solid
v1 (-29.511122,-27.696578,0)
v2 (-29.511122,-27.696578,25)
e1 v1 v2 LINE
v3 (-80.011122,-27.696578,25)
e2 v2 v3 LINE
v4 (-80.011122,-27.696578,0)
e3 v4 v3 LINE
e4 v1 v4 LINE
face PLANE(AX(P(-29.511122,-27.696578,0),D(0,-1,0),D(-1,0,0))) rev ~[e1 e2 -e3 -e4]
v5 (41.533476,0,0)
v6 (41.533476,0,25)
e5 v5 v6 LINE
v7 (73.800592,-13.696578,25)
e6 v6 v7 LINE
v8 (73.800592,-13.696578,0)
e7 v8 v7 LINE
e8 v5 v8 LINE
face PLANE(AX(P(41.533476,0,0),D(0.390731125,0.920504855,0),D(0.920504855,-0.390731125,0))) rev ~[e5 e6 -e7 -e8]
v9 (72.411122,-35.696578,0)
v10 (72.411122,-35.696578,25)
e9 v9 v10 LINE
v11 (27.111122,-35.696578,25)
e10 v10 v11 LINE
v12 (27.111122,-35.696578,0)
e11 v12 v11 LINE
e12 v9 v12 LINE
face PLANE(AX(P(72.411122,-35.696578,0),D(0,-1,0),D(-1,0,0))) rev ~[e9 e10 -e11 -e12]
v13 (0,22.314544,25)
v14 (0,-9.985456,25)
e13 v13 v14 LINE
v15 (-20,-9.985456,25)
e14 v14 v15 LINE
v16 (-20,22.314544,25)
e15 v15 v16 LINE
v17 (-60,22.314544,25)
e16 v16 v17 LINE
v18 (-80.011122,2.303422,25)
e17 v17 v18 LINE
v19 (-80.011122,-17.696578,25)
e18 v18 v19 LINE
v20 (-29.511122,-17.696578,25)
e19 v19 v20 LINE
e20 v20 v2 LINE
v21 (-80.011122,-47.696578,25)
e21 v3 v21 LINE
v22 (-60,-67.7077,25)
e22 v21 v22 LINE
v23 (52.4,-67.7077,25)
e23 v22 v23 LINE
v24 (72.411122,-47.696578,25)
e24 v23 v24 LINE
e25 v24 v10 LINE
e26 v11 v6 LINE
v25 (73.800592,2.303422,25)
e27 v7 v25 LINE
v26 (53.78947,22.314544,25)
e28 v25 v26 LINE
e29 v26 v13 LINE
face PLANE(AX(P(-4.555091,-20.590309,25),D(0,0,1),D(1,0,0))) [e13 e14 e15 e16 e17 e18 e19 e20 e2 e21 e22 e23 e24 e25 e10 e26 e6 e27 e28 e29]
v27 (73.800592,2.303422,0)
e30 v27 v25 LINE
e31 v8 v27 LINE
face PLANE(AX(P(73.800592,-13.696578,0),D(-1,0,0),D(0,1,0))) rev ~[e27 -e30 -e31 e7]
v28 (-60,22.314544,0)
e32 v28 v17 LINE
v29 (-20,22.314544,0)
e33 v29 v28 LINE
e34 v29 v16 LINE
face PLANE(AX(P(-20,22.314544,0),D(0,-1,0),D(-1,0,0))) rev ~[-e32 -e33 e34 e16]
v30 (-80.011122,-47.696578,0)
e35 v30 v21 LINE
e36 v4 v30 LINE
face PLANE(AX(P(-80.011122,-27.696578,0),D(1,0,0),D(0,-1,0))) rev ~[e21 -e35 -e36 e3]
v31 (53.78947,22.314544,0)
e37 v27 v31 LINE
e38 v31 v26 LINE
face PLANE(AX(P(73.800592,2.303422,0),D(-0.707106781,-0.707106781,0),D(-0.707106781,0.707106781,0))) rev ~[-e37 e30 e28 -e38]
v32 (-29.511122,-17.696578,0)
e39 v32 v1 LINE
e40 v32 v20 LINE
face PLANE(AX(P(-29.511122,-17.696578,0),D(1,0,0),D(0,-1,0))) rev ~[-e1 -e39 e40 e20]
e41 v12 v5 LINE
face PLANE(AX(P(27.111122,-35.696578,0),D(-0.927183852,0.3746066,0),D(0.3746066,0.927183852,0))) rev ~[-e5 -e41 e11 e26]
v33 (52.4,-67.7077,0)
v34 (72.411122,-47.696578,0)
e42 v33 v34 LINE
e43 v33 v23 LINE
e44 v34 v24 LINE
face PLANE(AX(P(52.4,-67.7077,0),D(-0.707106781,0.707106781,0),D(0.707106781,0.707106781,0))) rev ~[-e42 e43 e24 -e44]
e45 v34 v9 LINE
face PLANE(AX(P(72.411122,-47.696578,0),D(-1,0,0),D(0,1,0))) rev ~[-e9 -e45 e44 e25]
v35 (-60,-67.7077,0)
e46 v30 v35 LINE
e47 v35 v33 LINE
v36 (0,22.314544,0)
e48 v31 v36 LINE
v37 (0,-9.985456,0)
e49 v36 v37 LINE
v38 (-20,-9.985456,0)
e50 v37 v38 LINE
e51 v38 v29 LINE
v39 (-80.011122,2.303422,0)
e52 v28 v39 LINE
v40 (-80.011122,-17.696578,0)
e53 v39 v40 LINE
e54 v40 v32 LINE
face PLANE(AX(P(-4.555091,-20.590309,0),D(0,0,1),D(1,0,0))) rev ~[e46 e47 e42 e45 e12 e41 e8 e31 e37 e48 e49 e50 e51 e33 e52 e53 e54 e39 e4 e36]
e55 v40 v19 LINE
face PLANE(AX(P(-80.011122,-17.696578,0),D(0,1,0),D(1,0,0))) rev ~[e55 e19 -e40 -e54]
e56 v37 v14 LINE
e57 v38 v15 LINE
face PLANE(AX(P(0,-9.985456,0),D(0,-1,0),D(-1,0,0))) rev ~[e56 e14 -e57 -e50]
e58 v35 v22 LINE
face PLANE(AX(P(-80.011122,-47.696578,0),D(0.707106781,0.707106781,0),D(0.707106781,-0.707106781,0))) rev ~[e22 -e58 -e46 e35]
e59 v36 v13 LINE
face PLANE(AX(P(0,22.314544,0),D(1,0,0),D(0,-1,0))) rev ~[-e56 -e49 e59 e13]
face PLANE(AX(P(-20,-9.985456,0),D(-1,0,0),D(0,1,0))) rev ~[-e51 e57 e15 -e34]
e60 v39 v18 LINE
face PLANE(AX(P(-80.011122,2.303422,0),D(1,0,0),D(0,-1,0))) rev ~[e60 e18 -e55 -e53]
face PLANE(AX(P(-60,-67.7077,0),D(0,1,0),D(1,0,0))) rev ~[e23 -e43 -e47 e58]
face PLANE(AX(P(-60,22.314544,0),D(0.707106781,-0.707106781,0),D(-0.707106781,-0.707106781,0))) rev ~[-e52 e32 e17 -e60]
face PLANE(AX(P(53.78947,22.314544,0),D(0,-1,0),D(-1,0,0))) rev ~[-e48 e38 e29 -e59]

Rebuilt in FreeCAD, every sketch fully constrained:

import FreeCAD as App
import Part
import Sketcher

V = App.Vector
Q = App.Units.Quantity

doc = App.newDocument("Part")
body = doc.addObject("PartDesign::Body", "Body")

sketch1 = body.newObject("Sketcher::SketchObject", "Sketch")
sketch1.AttachmentSupport = (doc.getObject("XY_Plane"), [""])
sketch1.MapMode = "FlatFace"
sketch1.addGeometry([
    Part.LineSegment(V(-80, -48, 0), V(-60, -68, 0)),
    Part.LineSegment(V(-60, -68, 0), V(52, -68, 0)),
    Part.LineSegment(V(52, -68, 0), V(72, -48, 0)),
    Part.LineSegment(V(72, -48, 0), V(72, -36, 0)),
    Part.LineSegment(V(72, -36, 0), V(27, -36, 0)),
    Part.LineSegment(V(27, -36, 0), V(42, 0, 0)),
    Part.LineSegment(V(42, 0, 0), V(74, -14, 0)),
    Part.LineSegment(V(74, -14, 0), V(74, 2, 0)),
    Part.LineSegment(V(74, 2, 0), V(54, 22, 0)),
    Part.LineSegment(V(54, 22, 0), V(0, 22, 0)),
    Part.LineSegment(V(0, 22, 0), V(0, -10, 0)),
    Part.LineSegment(V(0, -10, 0), V(-20, -10, 0)),
    Part.LineSegment(V(-20, -10, 0), V(-20, 22, 0)),
    Part.LineSegment(V(-20, 22, 0), V(-60, 22, 0)),
    Part.LineSegment(V(-60, 22, 0), V(-80, 2, 0)),
    Part.LineSegment(V(-80, 2, 0), V(-80, -18, 0)),
    Part.LineSegment(V(-80, -18, 0), V(-30, -18, 0)),
    Part.LineSegment(V(-30, -18, 0), V(-30, -28, 0)),
    Part.LineSegment(V(-30, -28, 0), V(-80, -28, 0)),
    Part.LineSegment(V(-80, -28, 0), V(-80, -48, 0)),
], False)
sketch1.addConstraint([
    Sketcher.Constraint("Coincident", 0, 2, 1, 1),
    Sketcher.Constraint("Coincident", 1, 2, 2, 1),
    Sketcher.Constraint("Coincident", 2, 2, 3, 1),
    Sketcher.Constraint("Coincident", 3, 2, 4, 1),
    Sketcher.Constraint("Coincident", 4, 2, 5, 1),
    Sketcher.Constraint("Coincident", 5, 2, 6, 1),
    Sketcher.Constraint("Coincident", 6, 2, 7, 1),
    Sketcher.Constraint("Coincident", 7, 2, 8, 1),
    Sketcher.Constraint("Coincident", 8, 2, 9, 1),
    Sketcher.Constraint("Coincident", 9, 2, 10, 1),
    Sketcher.Constraint("Coincident", 10, 2, 11, 1),
    Sketcher.Constraint("Coincident", 11, 2, 12, 1),
    Sketcher.Constraint("Coincident", 12, 2, 13, 1),
    Sketcher.Constraint("Coincident", 13, 2, 14, 1),
    Sketcher.Constraint("Coincident", 14, 2, 15, 1),
    Sketcher.Constraint("Coincident", 15, 2, 16, 1),
    Sketcher.Constraint("Coincident", 16, 2, 17, 1),
    Sketcher.Constraint("Coincident", 17, 2, 18, 1),
    Sketcher.Constraint("Coincident", 18, 2, 19, 1),
    Sketcher.Constraint("Coincident", 19, 2, 0, 1),
    Sketcher.Constraint("Horizontal", 1),
    Sketcher.Constraint("Vertical", 3),
    Sketcher.Constraint("Horizontal", 4),
    Sketcher.Constraint("Vertical", 7),
    Sketcher.Constraint("Horizontal", 9),
    Sketcher.Constraint("Vertical", 10),
    Sketcher.Constraint("Horizontal", 11),
    Sketcher.Constraint("Vertical", 12),
    Sketcher.Constraint("Horizontal", 13),
    Sketcher.Constraint("Vertical", 15),
    Sketcher.Constraint("Horizontal", 16),
    Sketcher.Constraint("Vertical", 17),
    Sketcher.Constraint("Horizontal", 18),
    Sketcher.Constraint("Vertical", 19),
    Sketcher.Constraint("PointOnObject", 5, 2, -1),
    Sketcher.Constraint("PointOnObject", 9, 2, -2),
    Sketcher.Constraint("Perpendicular", 0, 2),
    Sketcher.Constraint("Perpendicular", 2, 8),
    Sketcher.Constraint("Perpendicular", 8, 14),
    Sketcher.Constraint("Horizontal", 9, 2, 12, 2),
    Sketcher.Constraint("Horizontal", 7, 2, 14, 2),
    Sketcher.Constraint("Horizontal", 2, 2, 19, 2),
    Sketcher.Constraint("Vertical", 0, 2, 13, 2),
    Sketcher.Constraint("Vertical", 15, 2, 18, 2),
    Sketcher.Constraint("Equal", 11, 15),
    Sketcher.Constraint("Equal", 15, 19),
    Sketcher.Constraint("Equal", 0, 2),
    Sketcher.Constraint("DistanceX", 11, 2, 11, 1, 20.0),
    Sketcher.Constraint("DistanceX", 13, 2, 13, 1, 40.0),
    Sketcher.Constraint("DistanceY", 3, 1, 3, 2, 12.0),
    Sketcher.Constraint("DistanceY", 7, 1, 7, 2, 16.0),
    Sketcher.Constraint("DistanceY", 17, 2, 17, 1, 10.0),
    Sketcher.Constraint("Angle", 5, Q("68 deg")),
    Sketcher.Constraint("Angle", 6, Q("-23 deg")),
    Sketcher.Constraint("DistanceX", 1, 1, 1, 2, 112.4),
    Sketcher.Constraint("DistanceX", 4, 2, 4, 1, 45.3),
    Sketcher.Constraint("DistanceX", 16, 1, 16, 2, 50.5),
    Sketcher.Constraint("DistanceY", 10, 2, 10, 1, 32.3),
    Sketcher.Constraint("Distance", 0, 28.3),
    Sketcher.Constraint("Distance", 5, 38.5),
])
pad1 = body.newObject("PartDesign::Pad", "Pad")
pad1.Profile = sketch1
pad1.Length = 25

sketch2 = body.newObject("Sketcher::SketchObject", "Sketch001")
sketch2.AttachmentSupport = (doc.getObject("XY_Plane"), [""])
sketch2.MapMode = "FlatFace"
sketch2.addGeometry([
    Part.LineSegment(V(-80, -48, 0), V(-60, -68, 0)),
    Part.LineSegment(V(-60, -68, 0), V(52, -68, 0)),
    Part.LineSegment(V(52, -68, 0), V(72, -48, 0)),
    Part.LineSegment(V(72, -48, 0), V(72, -36, 0)),
    Part.LineSegment(V(72, -36, 0), V(27, -36, 0)),
    Part.LineSegment(V(27, -36, 0), V(42, 0, 0)),
    Part.LineSegment(V(42, 0, 0), V(74, -14, 0)),
    Part.LineSegment(V(74, -14, 0), V(74, 2, 0)),
    Part.LineSegment(V(74, 2, 0), V(54, 22, 0)),
    Part.LineSegment(V(54, 22, 0), V(0, 22, 0)),
    Part.LineSegment(V(0, 22, 0), V(0, -10, 0)),
    Part.LineSegment(V(0, -10, 0), V(-20, -10, 0)),
    Part.LineSegment(V(-20, -10, 0), V(-20, 22, 0)),
    Part.LineSegment(V(-20, 22, 0), V(-60, 22, 0)),
    Part.LineSegment(V(-60, 22, 0), V(-80, 2, 0)),
    Part.LineSegment(V(-80, 2, 0), V(-80, -18, 0)),
    Part.LineSegment(V(-80, -18, 0), V(-30, -18, 0)),
    Part.LineSegment(V(-30, -18, 0), V(-30, -28, 0)),
    Part.LineSegment(V(-30, -28, 0), V(-80, -28, 0)),
    Part.LineSegment(V(-80, -28, 0), V(-80, -48, 0)),
], False)
sketch2.addConstraint([
    Sketcher.Constraint("Coincident", 0, 2, 1, 1),
    Sketcher.Constraint("Coincident", 1, 2, 2, 1),
    Sketcher.Constraint("Coincident", 2, 2, 3, 1),
    Sketcher.Constraint("Coincident", 3, 2, 4, 1),
    Sketcher.Constraint("Coincident", 4, 2, 5, 1),
    Sketcher.Constraint("Coincident", 5, 2, 6, 1),
    Sketcher.Constraint("Coincident", 6, 2, 7, 1),
    Sketcher.Constraint("Coincident", 7, 2, 8, 1),
    Sketcher.Constraint("Coincident", 8, 2, 9, 1),
    Sketcher.Constraint("Coincident", 9, 2, 10, 1),
    Sketcher.Constraint("Coincident", 10, 2, 11, 1),
    Sketcher.Constraint("Coincident", 11, 2, 12, 1),
    Sketcher.Constraint("Coincident", 12, 2, 13, 1),
    Sketcher.Constraint("Coincident", 13, 2, 14, 1),
    Sketcher.Constraint("Coincident", 14, 2, 15, 1),
    Sketcher.Constraint("Coincident", 15, 2, 16, 1),
    Sketcher.Constraint("Coincident", 16, 2, 17, 1),
    Sketcher.Constraint("Coincident", 17, 2, 18, 1),
    Sketcher.Constraint("Coincident", 18, 2, 19, 1),
    Sketcher.Constraint("Coincident", 19, 2, 0, 1),
    Sketcher.Constraint("Horizontal", 1),
    Sketcher.Constraint("Vertical", 3),
    Sketcher.Constraint("Horizontal", 4),
    Sketcher.Constraint("Vertical", 7),
    Sketcher.Constraint("Horizontal", 9),
    Sketcher.Constraint("Vertical", 10),
    Sketcher.Constraint("Horizontal", 11),
    Sketcher.Constraint("Vertical", 12),
    Sketcher.Constraint("Horizontal", 13),
    Sketcher.Constraint("Vertical", 15),
    Sketcher.Constraint("Horizontal", 16),
    Sketcher.Constraint("Vertical", 17),
    Sketcher.Constraint("Horizontal", 18),
    Sketcher.Constraint("Vertical", 19),
    Sketcher.Constraint("PointOnObject", 5, 2, -1),
    Sketcher.Constraint("PointOnObject", 9, 2, -2),
    Sketcher.Constraint("Perpendicular", 0, 2),
    Sketcher.Constraint("Perpendicular", 2, 8),
    Sketcher.Constraint("Perpendicular", 8, 14),
    Sketcher.Constraint("Horizontal", 9, 2, 12, 2),
    Sketcher.Constraint("Horizontal", 7, 2, 14, 2),
    Sketcher.Constraint("Horizontal", 2, 2, 19, 2),
    Sketcher.Constraint("Vertical", 0, 2, 13, 2),
    Sketcher.Constraint("Vertical", 15, 2, 18, 2),
    Sketcher.Constraint("Equal", 11, 15),
    Sketcher.Constraint("Equal", 15, 19),
    Sketcher.Constraint("Equal", 0, 2),
    Sketcher.Constraint("DistanceX", 11, 2, 11, 1, 20.0),
    Sketcher.Constraint("DistanceX", 13, 2, 13, 1, 40.0),
    Sketcher.Constraint("DistanceY", 3, 1, 3, 2, 12.0),
    Sketcher.Constraint("DistanceY", 7, 1, 7, 2, 16.0),
    Sketcher.Constraint("DistanceY", 17, 2, 17, 1, 10.0),
    Sketcher.Constraint("Angle", 5, Q("68 deg")),
    Sketcher.Constraint("Angle", 6, Q("-23 deg")),
    Sketcher.Constraint("DistanceX", 1, 1, 1, 2, 112.4),
    Sketcher.Constraint("DistanceX", 4, 2, 4, 1, 45.3),
    Sketcher.Constraint("DistanceX", 16, 1, 16, 2, 50.5),
    Sketcher.Constraint("DistanceY", 10, 2, 10, 1, 32.3),
    Sketcher.Constraint("Distance", 0, 28.3),
    Sketcher.Constraint("Distance", 5, 38.5),
])
pad2 = body.newObject("PartDesign::Pad", "Pad001")
pad2.Profile = sketch2
pad2.Length = 25

doc.recompute()
